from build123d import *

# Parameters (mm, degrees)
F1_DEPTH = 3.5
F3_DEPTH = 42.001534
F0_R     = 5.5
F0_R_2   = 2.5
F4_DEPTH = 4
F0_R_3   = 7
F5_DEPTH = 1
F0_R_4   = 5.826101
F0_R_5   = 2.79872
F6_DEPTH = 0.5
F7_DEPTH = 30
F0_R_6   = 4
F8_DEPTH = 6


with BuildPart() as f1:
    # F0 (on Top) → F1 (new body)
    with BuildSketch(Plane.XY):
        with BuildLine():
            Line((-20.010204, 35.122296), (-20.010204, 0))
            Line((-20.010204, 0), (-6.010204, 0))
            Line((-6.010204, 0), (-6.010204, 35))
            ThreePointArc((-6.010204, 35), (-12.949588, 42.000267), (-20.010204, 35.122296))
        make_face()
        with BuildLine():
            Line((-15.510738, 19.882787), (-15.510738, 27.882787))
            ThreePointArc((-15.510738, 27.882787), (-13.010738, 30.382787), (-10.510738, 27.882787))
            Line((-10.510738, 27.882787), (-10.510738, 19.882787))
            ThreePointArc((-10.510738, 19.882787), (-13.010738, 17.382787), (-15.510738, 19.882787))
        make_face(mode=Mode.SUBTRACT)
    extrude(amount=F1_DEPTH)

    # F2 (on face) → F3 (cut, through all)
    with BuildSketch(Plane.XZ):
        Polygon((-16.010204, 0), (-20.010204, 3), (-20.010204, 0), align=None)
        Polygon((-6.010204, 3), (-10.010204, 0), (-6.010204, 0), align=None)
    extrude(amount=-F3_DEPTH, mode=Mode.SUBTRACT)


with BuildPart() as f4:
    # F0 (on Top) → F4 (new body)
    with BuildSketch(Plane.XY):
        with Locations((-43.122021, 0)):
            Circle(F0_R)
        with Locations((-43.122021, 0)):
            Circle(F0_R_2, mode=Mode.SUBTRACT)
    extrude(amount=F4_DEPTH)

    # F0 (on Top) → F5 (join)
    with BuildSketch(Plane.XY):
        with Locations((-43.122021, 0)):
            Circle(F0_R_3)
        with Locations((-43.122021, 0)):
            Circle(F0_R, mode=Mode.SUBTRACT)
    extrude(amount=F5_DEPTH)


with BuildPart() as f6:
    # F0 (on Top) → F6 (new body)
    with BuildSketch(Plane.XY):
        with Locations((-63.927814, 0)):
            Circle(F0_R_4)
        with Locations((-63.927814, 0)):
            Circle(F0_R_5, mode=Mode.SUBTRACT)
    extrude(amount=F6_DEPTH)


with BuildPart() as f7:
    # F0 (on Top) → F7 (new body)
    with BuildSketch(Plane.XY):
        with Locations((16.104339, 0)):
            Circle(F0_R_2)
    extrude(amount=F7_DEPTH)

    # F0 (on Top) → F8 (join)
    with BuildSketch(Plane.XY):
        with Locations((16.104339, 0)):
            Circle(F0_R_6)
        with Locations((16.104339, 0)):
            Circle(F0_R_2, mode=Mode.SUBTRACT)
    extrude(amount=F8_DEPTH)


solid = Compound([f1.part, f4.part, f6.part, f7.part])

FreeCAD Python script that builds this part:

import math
import FreeCAD as App
import Part
import Sketcher

V = App.Vector

doc = App.newDocument("Part")
body = doc.addObject("PartDesign::Body", "Body")

sketch1 = body.newObject("Sketcher::SketchObject", "Sketch")
sketch1.AttachmentSupport = (doc.getObject("XY_Plane"), [""])
sketch1.MapMode = "FlatFace"
sketch1.addGeometry([
    Part.LineSegment(V(-20, 35.1, 0), V(-20, 0, 0)),
    Part.LineSegment(V(-20, 0, 0), V(-6, 0, 0)),
    Part.LineSegment(V(-6, 0, 0), V(-6, 35, 0)),
    Part.ArcOfCircle(Part.Circle(V(-13, 35, 0), V(0, 0, 1), 7), math.radians(0), math.radians(179)),
    Part.ArcOfCircle(Part.Circle(V(-13, 19.9, 0), V(0, 0, 1), 2.5), math.radians(180), math.radians(360)),
    Part.LineSegment(V(-15.5, 19.9, 0), V(-15.5, 27.9, 0)),
    Part.ArcOfCircle(Part.Circle(V(-13, 27.9, 0), V(0, 0, 1), 2.5), math.radians(0), math.radians(180)),
    Part.LineSegment(V(-10.5, 27.9, 0), V(-10.5, 19.9, 0)),
], False)
sketch1.addConstraint([
    Sketcher.Constraint("Coincident", 0, 2, 1, 1),
    Sketcher.Constraint("Coincident", 1, 2, 2, 1),
    Sketcher.Constraint("Tangent", 2, 2, 3, 1),
    Sketcher.Constraint("Coincident", 3, 2, 0, 1),
    Sketcher.Constraint("Tangent", 4, 1, 5, 1),
    Sketcher.Constraint("Tangent", 5, 2, 6, 2),
    Sketcher.Constraint("Tangent", 6, 1, 7, 1),
    Sketcher.Constraint("Tangent", 7, 2, 4, 2),
    Sketcher.Constraint("Vertical", 0),
    Sketcher.Constraint("Horizontal", 1),
    Sketcher.Constraint("Vertical", 2),
    Sketcher.Constraint("Vertical", 5),
    Sketcher.Constraint("Vertical", 7),
    Sketcher.Constraint("PointOnObject", 0, 2, -1),
    Sketcher.Constraint("Vertical", 3, 3, 4, 3),
    Sketcher.Constraint("Radius", 4, 2.5),
    Sketcher.Constraint("DistanceX", 1, 1, 1, 2, 14.0),
    Sketcher.Constraint("DistanceY", 2, 1, 2, 2, 35.0),
    Sketcher.Constraint("DistanceY", 5, 1, 5, 2, 8.0),
    Sketcher.Constraint("Radius", 3, 7.000534),
    Sketcher.Constraint("DistanceX", 3, 3, -1, 1, 13.010738),
    Sketcher.Constraint("DistanceY", 6, 3, 3, 2, 7.239509),
])
pad1 = body.newObject("PartDesign::Pad", "Pad")
pad1.Profile = sketch1
pad1.Length = 3.5

sketch2 = body.newObject("Sketcher::SketchObject", "Sketch001")
sketch2.AttachmentSupport = (doc.getObject("XZ_Plane"), [""])
sketch2.MapMode = "FlatFace"
sketch2.addGeometry([
    Part.LineSegment(V(-16, 0, 0), V(-20, 3, 0)),
    Part.LineSegment(V(-20, 3, 0), V(-20, 0, 0)),
    Part.LineSegment(V(-20, 0, 0), V(-16, 0, 0)),
    Part.LineSegment(V(-6, 3, 0), V(-10, 0, 0)),
    Part.LineSegment(V(-10, 0, 0), V(-6, 0, 0)),
    Part.LineSegment(V(-6, 0, 0), V(-6, 3, 0)),
], False)
sketch2.addConstraint([
    Sketcher.Constraint("Coincident", 0, 2, 1, 1),
    Sketcher.Constraint("Coincident", 1, 2, 2, 1),
    Sketcher.Constraint("Coincident", 2, 2, 0, 1),
    Sketcher.Constraint("Coincident", 3, 2, 4, 1),
    Sketcher.Constraint("Coincident", 4, 2, 5, 1),
    Sketcher.Constraint("Coincident", 5, 2, 3, 1),
    Sketcher.Constraint("Vertical", 1),
    Sketcher.Constraint("Horizontal", 2),
    Sketcher.Constraint("Horizontal", 4),
    Sketcher.Constraint("Vertical", 5),
    Sketcher.Constraint("PointOnObject", 1, 2, -1),
    Sketcher.Constraint("PointOnObject", 3, 2, -1),
    Sketcher.Constraint("Horizontal", 0, 2, 5, 2),
    Sketcher.Constraint("Equal", 2, 4),
    Sketcher.Constraint("DistanceX", 2, 1, 2, 2, 4.0),
    Sketcher.Constraint("DistanceY", 1, 2, 1, 1, 3.0),
    Sketcher.Constraint("DistanceX", 2, 2, 3, 2, 6.0),
    Sketcher.Constraint("DistanceX", 0, 2, -1, 1, 20.010204),
])
pocket1 = body.newObject("PartDesign::Pocket", "Pocket")
pocket1.Profile = sketch2
pocket1.Type = "ThroughAll"
body2 = doc.addObject("PartDesign::Body", "Body001")

sketch3 = body2.newObject("Sketcher::SketchObject", "Sketch002")
sketch3.AttachmentSupport = (doc.getObject("XY_Plane001"), [""])
sketch3.MapMode = "FlatFace"
sketch3.addGeometry([
    Part.Circle(V(-43.1, 0, 0), V(0, 0, 1), 5.5),
    Part.Circle(V(-43.1, 0, 0), V(0, 0, 1), 2.5),
], False)
sketch3.addConstraint([
    Sketcher.Constraint("Coincident", 1, 3, 0, 3),
    Sketcher.Constraint("PointOnObject", 0, 3, -1),
    Sketcher.Constraint("Diameter", 0, 11.0),
    Sketcher.Constraint("Diameter", 1, 5.0),
    Sketcher.Constraint("DistanceX", 0, 3, -1, 1, 43.122021),
])
pad2 = body2.newObject("PartDesign::Pad", "Pad001")
pad2.Profile = sketch3
pad2.Length = 4

sketch4 = body2.newObject("Sketcher::SketchObject", "Sketch003")
sketch4.AttachmentSupport = (doc.getObject("XY_Plane001"), [""])
sketch4.MapMode = "FlatFace"
sketch4.addGeometry([
    Part.Circle(V(-43, 0, 0), V(0, 0, 1), 7),
    Part.Circle(V(-43, 0, 0), V(0, 0, 1), 6),
], False)
sketch4.addConstraint([
    Sketcher.Constraint("Coincident", 1, 3, 0, 3),
    Sketcher.Constraint("PointOnObject", 0, 3, -1),
    Sketcher.Constraint("Diameter", 0, 14.0),
    Sketcher.Constraint("Diameter", 1, 11.0),
    Sketcher.Constraint("DistanceX", 0, 3, -1, 1, 43.122021),
])
pad3 = body2.newObject("PartDesign::Pad", "Pad002")
pad3.Profile = sketch4
pad3.Length = 1
body3 = doc.addObject("PartDesign::Body", "Body002")

sketch5 = body3.newObject("Sketcher::SketchObject", "Sketch004")
sketch5.AttachmentSupport = (doc.getObject("XY_Plane002"), [""])
sketch5.MapMode = "FlatFace"
sketch5.addGeometry([
    Part.Circle(V(-63.9, 0, 0), V(0, 0, 1), 5.8),
    Part.Circle(V(-63.9, 0, 0), V(0, 0, 1), 2.8),
], False)
sketch5.addConstraint([
    Sketcher.Constraint("Coincident", 1, 3, 0, 3),
    Sketcher.Constraint("PointOnObject", 0, 3, -1),
    Sketcher.Constraint("Diameter", 1, 5.59744),
    Sketcher.Constraint("Diameter", 0, 11.652202),
    Sketcher.Constraint("DistanceX", 0, 3, -1, 1, 63.927814),
])
pad4 = body3.newObject("PartDesign::Pad", "Pad003")
pad4.Profile = sketch5
pad4.Length = 0.5
body4 = doc.addObject("PartDesign::Body", "Body003")

sketch6 = body4.newObject("Sketcher::SketchObject", "Sketch005")
sketch6.AttachmentSupport = (doc.getObject("XY_Plane003"), [""])
sketch6.MapMode = "FlatFace"
sketch6.addGeometry(Part.Circle(V(16.1, 0, 0), V(0, 0, 1), 2.5), False)
sketch6.addConstraint([
    Sketcher.Constraint("PointOnObject", 0, 3, -1),
    Sketcher.Constraint("Diameter", 0, 5.0),
    Sketcher.Constraint("DistanceX", -1, 1, 0, 3, 16.104339),
])
pad5 = body4.newObject("PartDesign::Pad", "Pad004")
pad5.Profile = sketch6
pad5.Length = 30

sketch7 = body4.newObject("Sketcher::SketchObject", "Sketch006")
sketch7.AttachmentSupport = (doc.getObject("XY_Plane003"), [""])
sketch7.MapMode = "FlatFace"
sketch7.addGeometry([
    Part.Circle(V(16.1, 0, 0), V(0, 0, 1), 4),
    Part.Circle(V(16.1, 0, 0), V(0, 0, 1), 2.5),
], False)
sketch7.addConstraint([
    Sketcher.Constraint("Coincident", 1, 3, 0, 3),
    Sketcher.Constraint("PointOnObject", 0, 3, -1),
    Sketcher.Constraint("Diameter", 0, 8.0),
    Sketcher.Constraint("Diameter", 1, 5.0),
    Sketcher.Constraint("DistanceX", -1, 1, 0, 3, 16.104339),
])
pad6 = body4.newObject("PartDesign::Pad", "Pad005")
pad6.Profile = sketch7
pad6.Length = 6

doc.recompute()
